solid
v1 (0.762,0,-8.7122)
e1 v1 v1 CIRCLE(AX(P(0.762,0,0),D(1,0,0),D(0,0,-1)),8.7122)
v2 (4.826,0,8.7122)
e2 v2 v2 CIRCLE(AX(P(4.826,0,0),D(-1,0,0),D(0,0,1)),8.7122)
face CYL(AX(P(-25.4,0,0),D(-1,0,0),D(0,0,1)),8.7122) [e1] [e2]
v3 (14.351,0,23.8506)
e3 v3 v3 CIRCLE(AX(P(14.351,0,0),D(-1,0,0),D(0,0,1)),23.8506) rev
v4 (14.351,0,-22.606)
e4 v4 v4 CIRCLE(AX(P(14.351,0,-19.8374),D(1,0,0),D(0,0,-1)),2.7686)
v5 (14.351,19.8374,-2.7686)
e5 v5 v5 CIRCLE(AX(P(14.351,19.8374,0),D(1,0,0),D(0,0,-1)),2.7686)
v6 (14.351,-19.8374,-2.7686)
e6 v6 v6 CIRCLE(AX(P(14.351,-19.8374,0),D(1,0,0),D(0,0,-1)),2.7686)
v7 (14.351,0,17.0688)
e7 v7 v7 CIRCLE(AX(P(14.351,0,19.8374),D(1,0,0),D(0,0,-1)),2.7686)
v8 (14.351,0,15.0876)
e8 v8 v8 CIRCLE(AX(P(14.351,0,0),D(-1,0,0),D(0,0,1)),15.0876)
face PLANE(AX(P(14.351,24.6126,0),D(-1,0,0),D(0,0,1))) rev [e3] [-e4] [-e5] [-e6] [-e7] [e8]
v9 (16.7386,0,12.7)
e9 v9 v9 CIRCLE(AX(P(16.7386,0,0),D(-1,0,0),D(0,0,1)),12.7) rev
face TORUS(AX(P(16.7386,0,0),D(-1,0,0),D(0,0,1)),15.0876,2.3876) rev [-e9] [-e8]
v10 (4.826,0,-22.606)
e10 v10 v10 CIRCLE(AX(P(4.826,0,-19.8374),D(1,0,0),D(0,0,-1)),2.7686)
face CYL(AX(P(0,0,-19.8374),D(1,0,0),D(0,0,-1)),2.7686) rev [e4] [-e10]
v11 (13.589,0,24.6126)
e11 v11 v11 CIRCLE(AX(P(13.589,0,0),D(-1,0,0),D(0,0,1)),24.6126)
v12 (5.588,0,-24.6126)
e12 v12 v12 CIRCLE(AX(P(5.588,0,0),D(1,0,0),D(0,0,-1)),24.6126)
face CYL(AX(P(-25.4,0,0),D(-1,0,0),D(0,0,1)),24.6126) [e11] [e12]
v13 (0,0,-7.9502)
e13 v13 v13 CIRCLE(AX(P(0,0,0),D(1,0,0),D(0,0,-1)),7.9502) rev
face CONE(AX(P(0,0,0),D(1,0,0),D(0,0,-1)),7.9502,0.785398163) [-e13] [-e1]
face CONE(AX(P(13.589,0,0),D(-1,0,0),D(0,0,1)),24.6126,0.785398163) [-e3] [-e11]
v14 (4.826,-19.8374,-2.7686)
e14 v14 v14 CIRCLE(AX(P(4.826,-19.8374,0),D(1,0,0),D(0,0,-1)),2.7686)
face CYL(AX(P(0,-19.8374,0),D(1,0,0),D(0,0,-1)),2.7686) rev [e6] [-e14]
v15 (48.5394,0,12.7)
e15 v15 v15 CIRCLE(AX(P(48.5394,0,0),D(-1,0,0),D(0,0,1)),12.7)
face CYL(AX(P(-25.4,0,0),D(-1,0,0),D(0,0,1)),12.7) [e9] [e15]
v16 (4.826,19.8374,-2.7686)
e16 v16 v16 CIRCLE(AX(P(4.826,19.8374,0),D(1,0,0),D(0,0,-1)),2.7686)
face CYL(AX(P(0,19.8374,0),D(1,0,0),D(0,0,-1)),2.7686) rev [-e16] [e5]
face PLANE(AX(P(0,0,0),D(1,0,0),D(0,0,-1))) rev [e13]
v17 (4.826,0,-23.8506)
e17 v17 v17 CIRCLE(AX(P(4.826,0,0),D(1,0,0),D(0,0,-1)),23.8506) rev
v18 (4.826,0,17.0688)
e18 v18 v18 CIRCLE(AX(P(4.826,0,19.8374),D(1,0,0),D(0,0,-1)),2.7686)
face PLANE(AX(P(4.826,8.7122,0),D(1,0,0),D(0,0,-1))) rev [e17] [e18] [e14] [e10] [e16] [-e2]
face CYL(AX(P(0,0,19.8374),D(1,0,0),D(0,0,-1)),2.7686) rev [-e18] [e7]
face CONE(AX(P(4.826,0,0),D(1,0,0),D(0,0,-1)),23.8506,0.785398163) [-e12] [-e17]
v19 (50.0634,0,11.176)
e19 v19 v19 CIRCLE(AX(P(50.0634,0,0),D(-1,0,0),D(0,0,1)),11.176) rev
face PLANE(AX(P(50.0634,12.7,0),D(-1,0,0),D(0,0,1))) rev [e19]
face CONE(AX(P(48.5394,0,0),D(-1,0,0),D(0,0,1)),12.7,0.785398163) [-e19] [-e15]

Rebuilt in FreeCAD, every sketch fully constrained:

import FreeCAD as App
import Part
import Sketcher
Q = App.Units.Quantity


def edges_at(feature, points):
    """Names of the edges that pass closest to the given points."""
    edges = feature.Shape.Edges
    near = lambda p: min(range(len(edges)), key=lambda i: edges[i].distToShape(Part.Vertex(*p))[0])
    return sorted({f"Edge{near(p) + 1}" for p in points})


def add_polygon(sketch, points):
    """Adds a closed chain of lines whose ends are joined by coincident constraints."""
    first, n = sketch.GeometryCount, len(points)
    for a, b in zip(points, points[1:] + points[:1]):
        sketch.addGeometry(Part.LineSegment(App.Vector(*a, 0), App.Vector(*b, 0)), False)
    for i in range(n):
        sketch.addConstraint(Sketcher.Constraint("Coincident", first + i, 2, first + (i + 1) % n, 1))

doc = App.newDocument("Part")
body = doc.addObject("PartDesign::Body", "Body")

# Sketch on XY plane
sketch1 = body.newObject("Sketcher::SketchObject", "Sketch")
sketch1.AttachmentSupport = (doc.getObject("XY_Plane"), [""])
sketch1.MapMode = "FlatFace"
add_polygon(sketch1, [(0, 8.7122), (0, 0), (50.0634, 0), (50.0634, 12.7), (14.351, 12.7), (14.351, 24.6126), (4.826, 24.6126), (4.826, 8.7122)])  # lines 0-7
sketch1.addConstraint([
    Sketcher.Constraint("Vertical", 0),
    Sketcher.Constraint("Horizontal", 1),
    Sketcher.Constraint("Vertical", 2),
    Sketcher.Constraint("Horizontal", 3),
    Sketcher.Constraint("Vertical", 4),
    Sketcher.Constraint("Horizontal", 5),
    Sketcher.Constraint("Vertical", 6),
    Sketcher.Constraint("Horizontal", 7),
    Sketcher.Constraint("Coincident", 0, 2, -1, 1),
    Sketcher.Constraint("DistanceY", 2, 1, 2, 2, Q("0.5 in")),
    Sketcher.Constraint("DistanceX", 7, 2, 7, 1, Q("0.19 in")),
    Sketcher.Constraint("DistanceX", 1, 1, 1, 2, Q("1.971 in")),
    Sketcher.Constraint("DistanceX", 3, 2, 3, 1, Q("1.406 in")),
    Sketcher.Constraint("DistanceY", 0, 2, 0, 1, Q("0.343 in")),
    Sketcher.Constraint("DistanceY", 4, 1, 4, 2, Q("0.469 in")),
])
revolution = body.newObject("PartDesign::Revolution", "Revolution")
revolution.Profile = sketch1
revolution.ReferenceAxis = (sketch1, ["H_Axis"])
revolution.Angle = 360
doc.recompute()

fillet = body.newObject("PartDesign::Fillet", "Fillet")
fillet.Base = (revolution, edges_at(revolution, [(14.351, 0, -12.7)]))
fillet.Radius = Q("0.094 in")
doc.recompute()

chamfer = body.newObject("PartDesign::Chamfer", "Chamfer")
chamfer.Base = (fillet, edges_at(fillet, [(14.351, 0, -24.613), (4.826, 0, -24.613), (0, 0, -8.712)]))
chamfer.Size = Q("0.03 in")
doc.recompute()

chamfer2 = body.newObject("PartDesign::Chamfer", "Chamfer001")
chamfer2.Base = (chamfer, edges_at(chamfer, [(50.063, 0, -12.7)]))
chamfer2.Size = Q("0.06 in")

# Sketch on YZ plane
sketch2 = body.newObject("Sketcher::SketchObject", "Sketch001")
sketch2.AttachmentSupport = (doc.getObject("YZ_Plane"), [""])
sketch2.MapMode = "FlatFace"
sketch2.AttachmentOffset = App.Placement(App.Vector(0, 0, 0.565 * 25.4), App.Rotation())
sketch2.addGeometry(Part.Circle(App.Vector(19.8374, 0, 0), App.Vector(0, 0, 1), 2.7686), False)
sketch2.addConstraint([
    Sketcher.Constraint("PointOnObject", 0, 3, -1),
    Sketcher.Constraint("Diameter", 0, Q("0.218 in")),
    Sketcher.Constraint("DistanceX", -1, 1, 0, 3, Q("0.781 in")),
])
pocket1 = body.newObject("PartDesign::Pocket", "Pocket")
pocket1.Profile = sketch2
pocket1.Type = "ThroughAll"

# Sketch on YZ plane
sketch3 = body.newObject("Sketcher::SketchObject", "Sketch002")
sketch3.AttachmentSupport = (doc.getObject("YZ_Plane"), [""])
sketch3.MapMode = "FlatFace"
sketch3.AttachmentOffset = App.Placement(App.Vector(0, 0, 0.565 * 25.4), App.Rotation())
sketch3.addGeometry([
    Part.Circle(App.Vector(0, 19.8374, 0), App.Vector(0, 0, 1), 2.7686),
    Part.Circle(App.Vector(-19.8374, 0, 0), App.Vector(0, 0, 1), 2.7686),
    Part.Circle(App.Vector(0, -19.8374, 0), App.Vector(0, 0, 1), 2.7686),
], False)
sketch3.addConstraint([
    Sketcher.Constraint("Equal", 0, 1),
    Sketcher.Constraint("Equal", 1, 2),
    Sketcher.Constraint("Symmetric", 0, 3, 2, 3, -1, 1),
    Sketcher.Constraint("PointOnObject", 0, 3, -2),
    Sketcher.Constraint("PointOnObject", 1, 3, -1),
    Sketcher.Constraint("Diameter", 0, Q("0.218 in")),
    Sketcher.Constraint("DistanceY", -1, 1, 0, 3, Q("0.781 in")),
    Sketcher.Constraint("DistanceX", 1, 3, -1, 1, Q("0.781 in")),
])
pocket2 = body.newObject("PartDesign::Pocket", "Pocket001")
pocket2.Profile = sketch3
pocket2.Type = "ThroughAll"

doc.recompute()
